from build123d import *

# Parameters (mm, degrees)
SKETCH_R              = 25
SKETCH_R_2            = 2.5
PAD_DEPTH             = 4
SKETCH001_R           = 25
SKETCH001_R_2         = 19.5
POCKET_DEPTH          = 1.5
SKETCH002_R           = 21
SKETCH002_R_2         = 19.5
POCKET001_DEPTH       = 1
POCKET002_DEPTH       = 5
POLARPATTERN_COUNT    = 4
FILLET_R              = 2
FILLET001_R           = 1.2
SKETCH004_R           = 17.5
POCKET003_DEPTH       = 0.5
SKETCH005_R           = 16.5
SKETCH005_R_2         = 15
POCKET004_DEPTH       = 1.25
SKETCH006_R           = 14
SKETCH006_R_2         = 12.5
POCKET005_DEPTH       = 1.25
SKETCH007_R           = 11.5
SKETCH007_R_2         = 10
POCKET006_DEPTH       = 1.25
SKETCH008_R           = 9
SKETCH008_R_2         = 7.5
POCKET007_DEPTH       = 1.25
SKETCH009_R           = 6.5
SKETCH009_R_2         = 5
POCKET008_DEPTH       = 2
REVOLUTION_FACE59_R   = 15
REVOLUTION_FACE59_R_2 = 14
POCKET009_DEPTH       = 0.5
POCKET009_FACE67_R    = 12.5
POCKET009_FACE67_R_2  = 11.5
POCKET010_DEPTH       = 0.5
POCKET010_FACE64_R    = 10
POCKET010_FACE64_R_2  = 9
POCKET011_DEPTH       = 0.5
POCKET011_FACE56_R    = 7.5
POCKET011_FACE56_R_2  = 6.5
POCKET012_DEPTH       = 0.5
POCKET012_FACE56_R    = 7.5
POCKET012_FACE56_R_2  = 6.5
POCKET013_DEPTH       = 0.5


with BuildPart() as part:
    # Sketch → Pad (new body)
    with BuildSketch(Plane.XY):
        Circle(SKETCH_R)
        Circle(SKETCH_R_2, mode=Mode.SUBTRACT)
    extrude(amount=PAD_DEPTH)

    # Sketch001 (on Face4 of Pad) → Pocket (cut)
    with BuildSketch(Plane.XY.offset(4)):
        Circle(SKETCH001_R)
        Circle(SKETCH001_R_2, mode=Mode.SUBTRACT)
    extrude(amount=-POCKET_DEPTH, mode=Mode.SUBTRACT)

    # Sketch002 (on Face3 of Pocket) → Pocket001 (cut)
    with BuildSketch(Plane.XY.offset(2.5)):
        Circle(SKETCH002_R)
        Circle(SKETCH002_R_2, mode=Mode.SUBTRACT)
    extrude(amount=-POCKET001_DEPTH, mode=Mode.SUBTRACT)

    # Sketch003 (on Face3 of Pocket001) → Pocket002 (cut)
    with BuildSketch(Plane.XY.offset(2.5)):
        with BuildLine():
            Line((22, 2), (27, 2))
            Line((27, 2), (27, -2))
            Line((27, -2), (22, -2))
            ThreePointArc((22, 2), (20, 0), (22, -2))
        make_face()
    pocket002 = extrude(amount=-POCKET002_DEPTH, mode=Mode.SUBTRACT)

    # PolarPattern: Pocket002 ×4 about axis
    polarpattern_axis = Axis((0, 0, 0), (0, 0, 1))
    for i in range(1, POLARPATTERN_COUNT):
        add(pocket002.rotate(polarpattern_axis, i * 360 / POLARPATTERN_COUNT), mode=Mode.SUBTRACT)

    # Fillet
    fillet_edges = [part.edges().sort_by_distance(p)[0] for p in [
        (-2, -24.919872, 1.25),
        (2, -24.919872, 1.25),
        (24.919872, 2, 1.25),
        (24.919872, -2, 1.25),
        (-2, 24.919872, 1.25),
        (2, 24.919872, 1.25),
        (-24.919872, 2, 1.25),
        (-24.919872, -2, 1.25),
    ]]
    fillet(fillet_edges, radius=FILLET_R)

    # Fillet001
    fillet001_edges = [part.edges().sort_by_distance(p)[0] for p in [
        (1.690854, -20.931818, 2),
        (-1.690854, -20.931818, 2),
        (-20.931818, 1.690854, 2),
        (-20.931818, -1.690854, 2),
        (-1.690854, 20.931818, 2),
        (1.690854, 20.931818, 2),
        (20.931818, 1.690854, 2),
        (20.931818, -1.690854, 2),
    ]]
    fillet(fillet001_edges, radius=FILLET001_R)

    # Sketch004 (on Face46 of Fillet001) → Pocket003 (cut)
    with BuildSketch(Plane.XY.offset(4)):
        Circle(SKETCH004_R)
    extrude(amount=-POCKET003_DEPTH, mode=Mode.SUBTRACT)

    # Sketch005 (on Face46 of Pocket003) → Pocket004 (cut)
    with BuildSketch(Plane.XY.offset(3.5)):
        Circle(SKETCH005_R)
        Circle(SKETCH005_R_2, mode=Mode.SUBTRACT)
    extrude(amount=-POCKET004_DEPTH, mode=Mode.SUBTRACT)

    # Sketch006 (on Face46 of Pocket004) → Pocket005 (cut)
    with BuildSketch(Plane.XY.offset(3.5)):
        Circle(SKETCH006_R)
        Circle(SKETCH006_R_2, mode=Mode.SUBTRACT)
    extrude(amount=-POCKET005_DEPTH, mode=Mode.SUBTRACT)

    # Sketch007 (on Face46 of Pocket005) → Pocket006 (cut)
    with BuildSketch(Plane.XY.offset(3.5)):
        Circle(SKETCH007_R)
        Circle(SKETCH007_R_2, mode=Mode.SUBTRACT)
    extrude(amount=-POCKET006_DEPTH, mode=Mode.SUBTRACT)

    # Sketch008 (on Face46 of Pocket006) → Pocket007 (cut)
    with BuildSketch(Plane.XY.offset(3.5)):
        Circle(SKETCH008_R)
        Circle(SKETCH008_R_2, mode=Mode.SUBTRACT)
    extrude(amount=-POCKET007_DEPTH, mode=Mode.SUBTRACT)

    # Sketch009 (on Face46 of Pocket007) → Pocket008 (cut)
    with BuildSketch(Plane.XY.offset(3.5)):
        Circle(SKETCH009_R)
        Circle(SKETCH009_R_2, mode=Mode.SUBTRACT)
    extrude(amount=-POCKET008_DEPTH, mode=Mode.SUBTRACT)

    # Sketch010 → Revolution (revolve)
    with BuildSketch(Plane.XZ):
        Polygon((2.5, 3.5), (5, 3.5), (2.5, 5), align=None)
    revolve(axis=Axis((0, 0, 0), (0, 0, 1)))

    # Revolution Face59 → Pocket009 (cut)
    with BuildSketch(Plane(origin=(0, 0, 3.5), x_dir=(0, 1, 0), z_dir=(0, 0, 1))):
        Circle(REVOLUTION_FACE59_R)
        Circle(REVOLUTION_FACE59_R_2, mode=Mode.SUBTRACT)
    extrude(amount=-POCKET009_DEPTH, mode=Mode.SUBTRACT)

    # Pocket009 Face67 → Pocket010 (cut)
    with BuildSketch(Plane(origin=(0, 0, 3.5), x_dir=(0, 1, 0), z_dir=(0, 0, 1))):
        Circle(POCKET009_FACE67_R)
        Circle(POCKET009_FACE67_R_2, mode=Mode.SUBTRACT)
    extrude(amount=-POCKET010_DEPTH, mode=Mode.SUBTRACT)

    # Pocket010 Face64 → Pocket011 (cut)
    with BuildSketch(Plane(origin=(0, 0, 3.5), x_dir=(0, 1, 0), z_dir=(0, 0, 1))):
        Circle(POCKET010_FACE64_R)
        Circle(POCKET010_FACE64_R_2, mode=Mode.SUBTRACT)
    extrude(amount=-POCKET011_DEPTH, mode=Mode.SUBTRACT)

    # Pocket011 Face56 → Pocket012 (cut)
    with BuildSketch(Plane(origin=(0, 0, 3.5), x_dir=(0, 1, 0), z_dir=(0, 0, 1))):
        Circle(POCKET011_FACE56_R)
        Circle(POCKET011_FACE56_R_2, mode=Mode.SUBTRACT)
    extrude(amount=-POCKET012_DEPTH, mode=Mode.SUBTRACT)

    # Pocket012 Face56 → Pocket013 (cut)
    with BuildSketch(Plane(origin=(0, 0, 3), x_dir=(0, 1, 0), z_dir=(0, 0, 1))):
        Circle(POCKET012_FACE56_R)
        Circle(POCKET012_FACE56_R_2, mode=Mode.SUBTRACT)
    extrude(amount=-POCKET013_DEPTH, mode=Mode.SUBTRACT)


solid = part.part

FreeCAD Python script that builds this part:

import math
import FreeCAD as App
import Part
import Sketcher

V = App.Vector


def edges_at(feature, points):
    """Names of the edges that pass closest to the given points."""
    edges = feature.Shape.Edges
    near = lambda p: min(range(len(edges)), key=lambda i: edges[i].distToShape(Part.Vertex(*p))[0])
    return sorted({f"Edge{near(p) + 1}" for p in points})

doc = App.newDocument("Part")
params = doc.addObject("Spreadsheet::Sheet", "Params")
for row, (alias, value) in enumerate([
    ("sketch1_diameter", "50 mm"),
    ("sketch1_diameter2", "5 mm"),
    ("pad1_length", "4 mm"),
    ("sketch2_diameter", "50 mm"),
    ("sketch2_diameter2", "39 mm"),
    ("pocket1_length", "1.5 mm"),
    ("sketch3_diameter", "42 mm"),
    ("sketch3_diameter2", "39 mm"),
    ("pocket2_length", "1 mm"),
    ("sketch4_radius", "2 mm"),
    ("sketch4_width", "5 mm"),
    ("pocket3_length", "5 mm"),
    ("fillet_radius", "2 mm"),
    ("fillet2_radius", "1.2 mm"),
    ("sketch5_diameter", "35 mm"),
    ("pocket4_length", "0.5 mm"),
    ("sketch6_diameter", "33 mm"),
    ("sketch6_diameter2", "30 mm"),
    ("pocket5_length", "1.25 mm"),
    ("sketch7_diameter", "28 mm"),
    ("sketch7_diameter2", "25 mm"),
    ("pocket6_length", "1.25 mm"),
    ("sketch8_diameter", "23 mm"),
    ("sketch8_diameter2", "20 mm"),
    ("pocket7_length", "1.25 mm"),
    ("sketch9_diameter", "18 mm"),
    ("sketch9_diameter2", "15 mm"),
    ("pocket8_length", "1.25 mm"),
    ("sketch10_diameter", "13 mm"),
    ("sketch10_diameter2", "10 mm"),
    ("pocket9_length", "2 mm"),
    ("sketch11_width", "2.5 mm"),
    ("sketch11_height", "1.5 mm"),
    ("revolution_angle", "360 deg"),
    ("sketch12_diameter", "30 mm"),
    ("sketch12_diameter2", "28 mm"),
    ("pocket10_length", "0.5 mm"),
    ("sketch13_diameter", "25 mm"),
    ("sketch13_diameter2", "23 mm"),
    ("pocket11_length", "0.5 mm"),
    ("sketch14_diameter", "20 mm"),
    ("sketch14_diameter2", "18 mm"),
    ("pocket12_length", "0.5 mm"),
    ("sketch15_diameter", "15 mm"),
    ("sketch15_diameter2", "13 mm"),
    ("pocket13_length", "0.5 mm"),
    ("sketch16_diameter", "15 mm"),
    ("sketch16_diameter2", "13 mm"),
    ("pocket14_length", "0.5 mm"),
], start=1):
    params.set(f"A{row}", alias)
    params.set(f"B{row}", "=" + value)
    params.setAlias(f"B{row}", alias)

body = doc.addObject("PartDesign::Body", "Body")

sketch1 = doc.addObject("Sketcher::SketchObject", "Sketch")
body.addObject(sketch1)
sketch1.AttachmentSupport = (doc.XY_Plane, [""])
sketch1.MapMode = "FlatFace"
sketch1.addGeometry([
    Part.Circle(V(0, 0, 0), V(0, 0, 1), 25),
    Part.Circle(V(0, 0, 0), V(0, 0, 1), 2.5),
], False)
sketch1.addConstraint([
    Sketcher.Constraint("Coincident", 0, 3, -1, 1),
    Sketcher.Constraint("Coincident", 1, 3, -1, 1),
    Sketcher.Constraint("Diameter", 0, 50.0),
    Sketcher.Constraint("Diameter", 1, 5.0),
])
sketch1.setExpression("Constraints[2]", "Params.sketch1_diameter")
sketch1.setExpression("Constraints[3]", "Params.sketch1_diameter2")
pad1 = doc.addObject("PartDesign::Pad", "Pad")
body.addObject(pad1)
pad1.Profile = sketch1
pad1.setExpression("Length", "Params.pad1_length")

sketch2 = doc.addObject("Sketcher::SketchObject", "Sketch001")
body.addObject(sketch2)
sketch2.AttachmentSupport = (doc.XY_Plane, [""])
sketch2.MapMode = "FlatFace"
sketch2.AttachmentOffset = App.Placement(V(0, 0, 4), App.Rotation())
sketch2.addGeometry([
    Part.Circle(V(0, 0, 0), V(0, 0, 1), 25),
    Part.Circle(V(0, 0, 0), V(0, 0, 1), 20),
], False)
sketch2.addConstraint([
    Sketcher.Constraint("Coincident", 0, 3, -1, 1),
    Sketcher.Constraint("Coincident", 1, 3, -1, 1),
    Sketcher.Constraint("Diameter", 0, 50.0),
    Sketcher.Constraint("Diameter", 1, 39.0),
])
sketch2.setExpression("Constraints[2]", "Params.sketch2_diameter")
sketch2.setExpression("Constraints[3]", "Params.sketch2_diameter2")
pocket1 = doc.addObject("PartDesign::Pocket", "Pocket")
body.addObject(pocket1)
pocket1.Profile = sketch2
pocket1.setExpression("Length", "Params.pocket1_length")

sketch3 = doc.addObject("Sketcher::SketchObject", "Sketch002")
body.addObject(sketch3)
sketch3.AttachmentSupport = (doc.XY_Plane, [""])
sketch3.MapMode = "FlatFace"
sketch3.AttachmentOffset = App.Placement(V(0, 0, 2.5), App.Rotation())
sketch3.addGeometry([
    Part.Circle(V(0, 0, 0), V(0, 0, 1), 21),
    Part.Circle(V(0, 0, 0), V(0, 0, 1), 20),
], False)
sketch3.addConstraint([
    Sketcher.Constraint("Coincident", 0, 3, -1, 1),
    Sketcher.Constraint("Coincident", 1, 3, -1, 1),
    Sketcher.Constraint("Diameter", 0, 42.0),
    Sketcher.Constraint("Diameter", 1, 39.0),
])
sketch3.setExpression("Constraints[2]", "Params.sketch3_diameter")
sketch3.setExpression("Constraints[3]", "Params.sketch3_diameter2")
pocket2 = doc.addObject("PartDesign::Pocket", "Pocket001")
body.addObject(pocket2)
pocket2.Profile = sketch3
pocket2.setExpression("Length", "Params.pocket2_length")

sketch4 = doc.addObject("Sketcher::SketchObject", "Sketch003")
body.addObject(sketch4)
sketch4.AttachmentSupport = (doc.XY_Plane, [""])
sketch4.MapMode = "FlatFace"
sketch4.AttachmentOffset = App.Placement(V(0, 0, 2.5), App.Rotation())
sketch4.addGeometry([
    Part.LineSegment(V(27, 2, 0), V(22, 2, 0)),
    Part.ArcOfCircle(Part.Circle(V(22, 0, 0), V(0, 0, 1), 2), math.radians(90), math.radians(270)),
    Part.LineSegment(V(22, -2, 0), V(27, -2, 0)),
    Part.LineSegment(V(27, -2, 0), V(27, 2, 0)),
], False)
sketch4.addConstraint([
    Sketcher.Constraint("Tangent", 0, 2, 1, 1),
    Sketcher.Constraint("Tangent", 1, 2, 2, 1),
    Sketcher.Constraint("Coincident", 2, 2, 3, 1),
    Sketcher.Constraint("Coincident", 3, 2, 0, 1),
    Sketcher.Constraint("Horizontal", 0),
    Sketcher.Constraint("Horizontal", 2),
    Sketcher.Constraint("Vertical", 3),
    Sketcher.Constraint("PointOnObject", 1, 3, -1),
    Sketcher.Constraint("Radius", 1, 2.0),
    Sketcher.Constraint("DistanceX", 0, 2, 0, 1, 5.0),
    Sketcher.Constraint("DistanceX", -1, 1, 1, 3, 22.0),
])
sketch4.setExpression("Constraints[8]", "Params.sketch4_radius")
sketch4.setExpression("Constraints[9]", "Params.sketch4_width")
pocket3 = doc.addObject("PartDesign::Pocket", "Pocket002")
body.addObject(pocket3)
pocket3.Profile = sketch4
pocket3.setExpression("Length", "Params.pocket3_length")
doc.recompute()

polarpattern = doc.addObject("PartDesign::PolarPattern", "PolarPattern")
body.addObject(polarpattern)
polarpattern.Originals = [pocket3]
polarpattern.Axis = (doc.Z_Axis, [""])
polarpattern.Angle = 360
polarpattern.Occurrences = 4
body.Tip = polarpattern
doc.recompute()

fillet = doc.addObject("PartDesign::Fillet", "Fillet")
body.addObject(fillet)
fillet.Base = (polarpattern, edges_at(polarpattern, [
    (-2, -24.92, 1.25),
    (2, -24.92, 1.25),
    (24.92, 2, 1.25),
    (24.92, -2, 1.25),
    (-2, 24.92, 1.25),
    (2, 24.92, 1.25),
    (-24.92, 2, 1.25),
    (-24.92, -2, 1.25),
]))
fillet.setExpression("Radius", "Params.fillet_radius")
doc.recompute()

fillet2 = doc.addObject("PartDesign::Fillet", "Fillet001")
body.addObject(fillet2)
fillet2.Base = (fillet, edges_at(fillet, [
    (1.691, -20.932, 2),
    (-1.691, -20.932, 2),
    (-20.932, 1.691, 2),
    (-20.932, -1.691, 2),
    (-1.691, 20.932, 2),
    (1.691, 20.932, 2),
    (20.932, 1.691, 2),
    (20.932, -1.691, 2),
]))
fillet2.setExpression("Radius", "Params.fillet2_radius")

sketch5 = doc.addObject("Sketcher::SketchObject", "Sketch004")
body.addObject(sketch5)
sketch5.AttachmentSupport = (doc.XY_Plane, [""])
sketch5.MapMode = "FlatFace"
sketch5.AttachmentOffset = App.Placement(V(0, 0, 4), App.Rotation())
sketch5.addGeometry(Part.Circle(V(0, 0, 0), V(0, 0, 1), 18), False)
sketch5.addConstraint([
    Sketcher.Constraint("Coincident", 0, 3, -1, 1),
    Sketcher.Constraint("Diameter", 0, 35.0),
])
sketch5.setExpression("Constraints[1]", "Params.sketch5_diameter")
pocket4 = doc.addObject("PartDesign::Pocket", "Pocket003")
body.addObject(pocket4)
pocket4.Profile = sketch5
pocket4.setExpression("Length", "Params.pocket4_length")

sketch6 = doc.addObject("Sketcher::SketchObject", "Sketch005")
body.addObject(sketch6)
sketch6.AttachmentSupport = (doc.XY_Plane, [""])
sketch6.MapMode = "FlatFace"
sketch6.AttachmentOffset = App.Placement(V(0, 0, 3.5), App.Rotation())
sketch6.addGeometry([
    Part.Circle(V(0, 0, 0), V(0, 0, 1), 16),
    Part.Circle(V(0, 0, 0), V(0, 0, 1), 15),
], False)
sketch6.addConstraint([
    Sketcher.Constraint("Coincident", 0, 3, -1, 1),
    Sketcher.Constraint("Coincident", 1, 3, -1, 1),
    Sketcher.Constraint("Diameter", 0, 33.0),
    Sketcher.Constraint("Diameter", 1, 30.0),
])
sketch6.setExpression("Constraints[2]", "Params.sketch6_diameter")
sketch6.setExpression("Constraints[3]", "Params.sketch6_diameter2")
pocket5 = doc.addObject("PartDesign::Pocket", "Pocket004")
body.addObject(pocket5)
pocket5.Profile = sketch6
pocket5.setExpression("Length", "Params.pocket5_length")

sketch7 = doc.addObject("Sketcher::SketchObject", "Sketch006")
body.addObject(sketch7)
sketch7.AttachmentSupport = (doc.XY_Plane, [""])
sketch7.MapMode = "FlatFace"
sketch7.AttachmentOffset = App.Placement(V(0, 0, 3.5), App.Rotation())
sketch7.addGeometry([
    Part.Circle(V(0, 0, 0), V(0, 0, 1), 14),
    Part.Circle(V(0, 0, 0), V(0, 0, 1), 12),
], False)
sketch7.addConstraint([
    Sketcher.Constraint("Coincident", 0, 3, -1, 1),
    Sketcher.Constraint("Coincident", 1, 3, -1, 1),
    Sketcher.Constraint("Diameter", 0, 28.0),
    Sketcher.Constraint("Diameter", 1, 25.0),
])
sketch7.setExpression("Constraints[2]", "Params.sketch7_diameter")
sketch7.setExpression("Constraints[3]", "Params.sketch7_diameter2")
pocket6 = doc.addObject("PartDesign::Pocket", "Pocket005")
body.addObject(pocket6)
pocket6.Profile = sketch7
pocket6.setExpression("Length", "Params.pocket6_length")

sketch8 = doc.addObject("Sketcher::SketchObject", "Sketch007")
body.addObject(sketch8)
sketch8.AttachmentSupport = (doc.XY_Plane, [""])
sketch8.MapMode = "FlatFace"
sketch8.AttachmentOffset = App.Placement(V(0, 0, 3.5), App.Rotation())
sketch8.addGeometry([
    Part.Circle(V(0, 0, 0), V(0, 0, 1), 12),
    Part.Circle(V(0, 0, 0), V(0, 0, 1), 10),
], False)
sketch8.addConstraint([
    Sketcher.Constraint("Coincident", 0, 3, -1, 1),
    Sketcher.Constraint("Coincident", 1, 3, -1, 1),
    Sketcher.Constraint("Diameter", 0, 23.0),
    Sketcher.Constraint("Diameter", 1, 20.0),
])
sketch8.setExpression("Constraints[2]", "Params.sketch8_diameter")
sketch8.setExpression("Constraints[3]", "Params.sketch8_diameter2")
pocket7 = doc.addObject("PartDesign::Pocket", "Pocket006")
body.addObject(pocket7)
pocket7.Profile = sketch8
pocket7.setExpression("Length", "Params.pocket7_length")

sketch9 = doc.addObject("Sketcher::SketchObject", "Sketch008")
body.addObject(sketch9)
sketch9.AttachmentSupport = (doc.XY_Plane, [""])
sketch9.MapMode = "FlatFace"
sketch9.AttachmentOffset = App.Placement(V(0, 0, 3.5), App.Rotation())
sketch9.addGeometry([
    Part.Circle(V(0, 0, 0), V(0, 0, 1), 9),
    Part.Circle(V(0, 0, 0), V(0, 0, 1), 8),
], False)
sketch9.addConstraint([
    Sketcher.Constraint("Coincident", 0, 3, -1, 1),
    Sketcher.Constraint("Coincident", 1, 3, -1, 1),
    Sketcher.Constraint("Diameter", 0, 18.0),
    Sketcher.Constraint("Diameter", 1, 15.0),
])
sketch9.setExpression("Constraints[2]", "Params.sketch9_diameter")
sketch9.setExpression("Constraints[3]", "Params.sketch9_diameter2")
pocket8 = doc.addObject("PartDesign::Pocket", "Pocket007")
body.addObject(pocket8)
pocket8.Profile = sketch9
pocket8.setExpression("Length", "Params.pocket8_length")

sketch10 = doc.addObject("Sketcher::SketchObject", "Sketch009")
body.addObject(sketch10)
sketch10.AttachmentSupport = (doc.XY_Plane, [""])
sketch10.MapMode = "FlatFace"
sketch10.AttachmentOffset = App.Placement(V(0, 0, 3.5), App.Rotation())
sketch10.addGeometry([
    Part.Circle(V(0, 0, 0), V(0, 0, 1), 6),
    Part.Circle(V(0, 0, 0), V(0, 0, 1), 5),
], False)
sketch10.addConstraint([
    Sketcher.Constraint("Coincident", 0, 3, -1, 1),
    Sketcher.Constraint("Coincident", 1, 3, -1, 1),
    Sketcher.Constraint("Diameter", 0, 13.0),
    Sketcher.Constraint("Diameter", 1, 10.0),
])
sketch10.setExpression("Constraints[2]", "Params.sketch10_diameter")
sketch10.setExpression("Constraints[3]", "Params.sketch10_diameter2")
pocket9 = doc.addObject("PartDesign::Pocket", "Pocket008")
body.addObject(pocket9)
pocket9.Profile = sketch10
pocket9.setExpression("Length", "Params.pocket9_length")

sketch11 = doc.addObject("Sketcher::SketchObject", "Sketch010")
body.addObject(sketch11)
sketch11.AttachmentSupport = (doc.XZ_Plane, [""])
sketch11.MapMode = "FlatFace"
sketch11.addGeometry([
    Part.LineSegment(V(2.5, 3.5, 0), V(5, 3.5, 0)),
    Part.LineSegment(V(5, 3.5, 0), V(2.5, 5, 0)),
    Part.LineSegment(V(2.5, 5, 0), V(2.5, 3.5, 0)),
], False)
sketch11.addConstraint([
    Sketcher.Constraint("Coincident", 0, 2, 1, 1),
    Sketcher.Constraint("Coincident", 1, 2, 2, 1),
    Sketcher.Constraint("Coincident", 2, 2, 0, 1),
    Sketcher.Constraint("Horizontal", 0),
    Sketcher.Constraint("Vertical", 2),
    Sketcher.Constraint("DistanceX", 0, 1, 0, 2, 2.5),
    Sketcher.Constraint("DistanceY", 2, 2, 2, 1, 1.5),
    Sketcher.Constraint("DistanceX", -1, 1, 0, 2, 5.0),
    Sketcher.Constraint("DistanceY", -1, 1, 1, 2, 5.0),
])
sketch11.setExpression("Constraints[5]", "Params.sketch11_width")
sketch11.setExpression("Constraints[6]", "Params.sketch11_height")
revolution = doc.addObject("PartDesign::Revolution", "Revolution")
body.addObject(revolution)
revolution.Profile = sketch11
revolution.ReferenceAxis = (sketch11, ["V_Axis"])
revolution.setExpression("Angle", "Params.revolution_angle")

sketch12 = doc.addObject("Sketcher::SketchObject", "Sketch011")
body.addObject(sketch12)
sketch12.AttachmentSupport = (doc.XY_Plane, [""])
sketch12.MapMode = "FlatFace"
sketch12.AttachmentOffset = App.Placement(V(0, 0, 3.5), App.Rotation())
sketch12.addGeometry([
    Part.Circle(V(0, 0, 0), V(0, 0, 1), 15),
    Part.Circle(V(0, 0, 0), V(0, 0, 1), 14),
], False)
sketch12.addConstraint([
    Sketcher.Constraint("Coincident", 0, 3, -1, 1),
    Sketcher.Constraint("Coincident", 1, 3, -1, 1),
    Sketcher.Constraint("Diameter", 0, 30.0),
    Sketcher.Constraint("Diameter", 1, 28.0),
])
sketch12.setExpression("Constraints[2]", "Params.sketch12_diameter")
sketch12.setExpression("Constraints[3]", "Params.sketch12_diameter2")
pocket10 = doc.addObject("PartDesign::Pocket", "Pocket009")
body.addObject(pocket10)
pocket10.Profile = sketch12
pocket10.setExpression("Length", "Params.pocket10_length")

sketch13 = doc.addObject("Sketcher::SketchObject", "Sketch012")
body.addObject(sketch13)
sketch13.AttachmentSupport = (doc.XY_Plane, [""])
sketch13.MapMode = "FlatFace"
sketch13.AttachmentOffset = App.Placement(V(0, 0, 3.5), App.Rotation())
sketch13.addGeometry([
    Part.Circle(V(0, 0, 0), V(0, 0, 1), 12),
    Part.Circle(V(0, 0, 0), V(0, 0, 1), 12),
], False)
sketch13.addConstraint([
    Sketcher.Constraint("Coincident", 0, 3, -1, 1),
    Sketcher.Constraint("Coincident", 1, 3, -1, 1),
    Sketcher.Constraint("Diameter", 0, 25.0),
    Sketcher.Constraint("Diameter", 1, 23.0),
])
sketch13.setExpression("Constraints[2]", "Params.sketch13_diameter")
sketch13.setExpression("Constraints[3]", "Params.sketch13_diameter2")
pocket11 = doc.addObject("PartDesign::Pocket", "Pocket010")
body.addObject(pocket11)
pocket11.Profile = sketch13
pocket11.setExpression("Length", "Params.pocket11_length")

sketch14 = doc.addObject("Sketcher::SketchObject", "Sketch013")
body.addObject(sketch14)
sketch14.AttachmentSupport = (doc.XY_Plane, [""])
sketch14.MapMode = "FlatFace"
sketch14.AttachmentOffset = App.Placement(V(0, 0, 3.5), App.Rotation())
sketch14.addGeometry([
    Part.Circle(V(0, 0, 0), V(0, 0, 1), 10),
    Part.Circle(V(0, 0, 0), V(0, 0, 1), 9),
], False)
sketch14.addConstraint([
    Sketcher.Constraint("Coincident", 0, 3, -1, 1),
    Sketcher.Constraint("Coincident", 1, 3, -1, 1),
    Sketcher.Constraint("Diameter", 0, 20.0),
    Sketcher.Constraint("Diameter", 1, 18.0),
])
sketch14.setExpression("Constraints[2]", "Params.sketch14_diameter")
sketch14.setExpression("Constraints[3]", "Params.sketch14_diameter2")
pocket12 = doc.addObject("PartDesign::Pocket", "Pocket011")
body.addObject(pocket12)
pocket12.Profile = sketch14
pocket12.setExpression("Length", "Params.pocket12_length")

sketch15 = doc.addObject("Sketcher::SketchObject", "Sketch014")
body.addObject(sketch15)
sketch15.AttachmentSupport = (doc.XY_Plane, [""])
sketch15.MapMode = "FlatFace"
sketch15.AttachmentOffset = App.Placement(V(0, 0, 3.5), App.Rotation())
sketch15.addGeometry([
    Part.Circle(V(0, 0, 0), V(0, 0, 1), 8),
    Part.Circle(V(0, 0, 0), V(0, 0, 1), 6),
], False)
sketch15.addConstraint([
    Sketcher.Constraint("Coincident", 0, 3, -1, 1),
    Sketcher.Constraint("Coincident", 1, 3, -1, 1),
    Sketcher.Constraint("Diameter", 0, 15.0),
    Sketcher.Constraint("Diameter", 1, 13.0),
])
sketch15.setExpression("Constraints[2]", "Params.sketch15_diameter")
sketch15.setExpression("Constraints[3]", "Params.sketch15_diameter2")
pocket13 = doc.addObject("PartDesign::Pocket", "Pocket012")
body.addObject(pocket13)
pocket13.Profile = sketch15
pocket13.setExpression("Length", "Params.pocket13_length")

sketch16 = doc.addObject("Sketcher::SketchObject", "Sketch015")
body.addObject(sketch16)
sketch16.AttachmentSupport = (doc.XY_Plane, [""])
sketch16.MapMode = "FlatFace"
sketch16.AttachmentOffset = App.Placement(V(0, 0, 3), App.Rotation())
sketch16.addGeometry([
    Part.Circle(V(0, 0, 0), V(0, 0, 1), 8),
    Part.Circle(V(0, 0, 0), V(0, 0, 1), 6),
], False)
sketch16.addConstraint([
    Sketcher.Constraint("Coincident", 0, 3, -1, 1),
    Sketcher.Constraint("Coincident", 1, 3, -1, 1),
    Sketcher.Constraint("Diameter", 0, 15.0),
    Sketcher.Constraint("Diameter", 1, 13.0),
])
sketch16.setExpression("Constraints[2]", "Params.sketch16_diameter")
sketch16.setExpression("Constraints[3]", "Params.sketch16_diameter2")
pocket14 = doc.addObject("PartDesign::Pocket", "Pocket013")
body.addObject(pocket14)
pocket14.Profile = sketch16
pocket14.setExpression("Length", "Params.pocket14_length")

doc.recompute()
